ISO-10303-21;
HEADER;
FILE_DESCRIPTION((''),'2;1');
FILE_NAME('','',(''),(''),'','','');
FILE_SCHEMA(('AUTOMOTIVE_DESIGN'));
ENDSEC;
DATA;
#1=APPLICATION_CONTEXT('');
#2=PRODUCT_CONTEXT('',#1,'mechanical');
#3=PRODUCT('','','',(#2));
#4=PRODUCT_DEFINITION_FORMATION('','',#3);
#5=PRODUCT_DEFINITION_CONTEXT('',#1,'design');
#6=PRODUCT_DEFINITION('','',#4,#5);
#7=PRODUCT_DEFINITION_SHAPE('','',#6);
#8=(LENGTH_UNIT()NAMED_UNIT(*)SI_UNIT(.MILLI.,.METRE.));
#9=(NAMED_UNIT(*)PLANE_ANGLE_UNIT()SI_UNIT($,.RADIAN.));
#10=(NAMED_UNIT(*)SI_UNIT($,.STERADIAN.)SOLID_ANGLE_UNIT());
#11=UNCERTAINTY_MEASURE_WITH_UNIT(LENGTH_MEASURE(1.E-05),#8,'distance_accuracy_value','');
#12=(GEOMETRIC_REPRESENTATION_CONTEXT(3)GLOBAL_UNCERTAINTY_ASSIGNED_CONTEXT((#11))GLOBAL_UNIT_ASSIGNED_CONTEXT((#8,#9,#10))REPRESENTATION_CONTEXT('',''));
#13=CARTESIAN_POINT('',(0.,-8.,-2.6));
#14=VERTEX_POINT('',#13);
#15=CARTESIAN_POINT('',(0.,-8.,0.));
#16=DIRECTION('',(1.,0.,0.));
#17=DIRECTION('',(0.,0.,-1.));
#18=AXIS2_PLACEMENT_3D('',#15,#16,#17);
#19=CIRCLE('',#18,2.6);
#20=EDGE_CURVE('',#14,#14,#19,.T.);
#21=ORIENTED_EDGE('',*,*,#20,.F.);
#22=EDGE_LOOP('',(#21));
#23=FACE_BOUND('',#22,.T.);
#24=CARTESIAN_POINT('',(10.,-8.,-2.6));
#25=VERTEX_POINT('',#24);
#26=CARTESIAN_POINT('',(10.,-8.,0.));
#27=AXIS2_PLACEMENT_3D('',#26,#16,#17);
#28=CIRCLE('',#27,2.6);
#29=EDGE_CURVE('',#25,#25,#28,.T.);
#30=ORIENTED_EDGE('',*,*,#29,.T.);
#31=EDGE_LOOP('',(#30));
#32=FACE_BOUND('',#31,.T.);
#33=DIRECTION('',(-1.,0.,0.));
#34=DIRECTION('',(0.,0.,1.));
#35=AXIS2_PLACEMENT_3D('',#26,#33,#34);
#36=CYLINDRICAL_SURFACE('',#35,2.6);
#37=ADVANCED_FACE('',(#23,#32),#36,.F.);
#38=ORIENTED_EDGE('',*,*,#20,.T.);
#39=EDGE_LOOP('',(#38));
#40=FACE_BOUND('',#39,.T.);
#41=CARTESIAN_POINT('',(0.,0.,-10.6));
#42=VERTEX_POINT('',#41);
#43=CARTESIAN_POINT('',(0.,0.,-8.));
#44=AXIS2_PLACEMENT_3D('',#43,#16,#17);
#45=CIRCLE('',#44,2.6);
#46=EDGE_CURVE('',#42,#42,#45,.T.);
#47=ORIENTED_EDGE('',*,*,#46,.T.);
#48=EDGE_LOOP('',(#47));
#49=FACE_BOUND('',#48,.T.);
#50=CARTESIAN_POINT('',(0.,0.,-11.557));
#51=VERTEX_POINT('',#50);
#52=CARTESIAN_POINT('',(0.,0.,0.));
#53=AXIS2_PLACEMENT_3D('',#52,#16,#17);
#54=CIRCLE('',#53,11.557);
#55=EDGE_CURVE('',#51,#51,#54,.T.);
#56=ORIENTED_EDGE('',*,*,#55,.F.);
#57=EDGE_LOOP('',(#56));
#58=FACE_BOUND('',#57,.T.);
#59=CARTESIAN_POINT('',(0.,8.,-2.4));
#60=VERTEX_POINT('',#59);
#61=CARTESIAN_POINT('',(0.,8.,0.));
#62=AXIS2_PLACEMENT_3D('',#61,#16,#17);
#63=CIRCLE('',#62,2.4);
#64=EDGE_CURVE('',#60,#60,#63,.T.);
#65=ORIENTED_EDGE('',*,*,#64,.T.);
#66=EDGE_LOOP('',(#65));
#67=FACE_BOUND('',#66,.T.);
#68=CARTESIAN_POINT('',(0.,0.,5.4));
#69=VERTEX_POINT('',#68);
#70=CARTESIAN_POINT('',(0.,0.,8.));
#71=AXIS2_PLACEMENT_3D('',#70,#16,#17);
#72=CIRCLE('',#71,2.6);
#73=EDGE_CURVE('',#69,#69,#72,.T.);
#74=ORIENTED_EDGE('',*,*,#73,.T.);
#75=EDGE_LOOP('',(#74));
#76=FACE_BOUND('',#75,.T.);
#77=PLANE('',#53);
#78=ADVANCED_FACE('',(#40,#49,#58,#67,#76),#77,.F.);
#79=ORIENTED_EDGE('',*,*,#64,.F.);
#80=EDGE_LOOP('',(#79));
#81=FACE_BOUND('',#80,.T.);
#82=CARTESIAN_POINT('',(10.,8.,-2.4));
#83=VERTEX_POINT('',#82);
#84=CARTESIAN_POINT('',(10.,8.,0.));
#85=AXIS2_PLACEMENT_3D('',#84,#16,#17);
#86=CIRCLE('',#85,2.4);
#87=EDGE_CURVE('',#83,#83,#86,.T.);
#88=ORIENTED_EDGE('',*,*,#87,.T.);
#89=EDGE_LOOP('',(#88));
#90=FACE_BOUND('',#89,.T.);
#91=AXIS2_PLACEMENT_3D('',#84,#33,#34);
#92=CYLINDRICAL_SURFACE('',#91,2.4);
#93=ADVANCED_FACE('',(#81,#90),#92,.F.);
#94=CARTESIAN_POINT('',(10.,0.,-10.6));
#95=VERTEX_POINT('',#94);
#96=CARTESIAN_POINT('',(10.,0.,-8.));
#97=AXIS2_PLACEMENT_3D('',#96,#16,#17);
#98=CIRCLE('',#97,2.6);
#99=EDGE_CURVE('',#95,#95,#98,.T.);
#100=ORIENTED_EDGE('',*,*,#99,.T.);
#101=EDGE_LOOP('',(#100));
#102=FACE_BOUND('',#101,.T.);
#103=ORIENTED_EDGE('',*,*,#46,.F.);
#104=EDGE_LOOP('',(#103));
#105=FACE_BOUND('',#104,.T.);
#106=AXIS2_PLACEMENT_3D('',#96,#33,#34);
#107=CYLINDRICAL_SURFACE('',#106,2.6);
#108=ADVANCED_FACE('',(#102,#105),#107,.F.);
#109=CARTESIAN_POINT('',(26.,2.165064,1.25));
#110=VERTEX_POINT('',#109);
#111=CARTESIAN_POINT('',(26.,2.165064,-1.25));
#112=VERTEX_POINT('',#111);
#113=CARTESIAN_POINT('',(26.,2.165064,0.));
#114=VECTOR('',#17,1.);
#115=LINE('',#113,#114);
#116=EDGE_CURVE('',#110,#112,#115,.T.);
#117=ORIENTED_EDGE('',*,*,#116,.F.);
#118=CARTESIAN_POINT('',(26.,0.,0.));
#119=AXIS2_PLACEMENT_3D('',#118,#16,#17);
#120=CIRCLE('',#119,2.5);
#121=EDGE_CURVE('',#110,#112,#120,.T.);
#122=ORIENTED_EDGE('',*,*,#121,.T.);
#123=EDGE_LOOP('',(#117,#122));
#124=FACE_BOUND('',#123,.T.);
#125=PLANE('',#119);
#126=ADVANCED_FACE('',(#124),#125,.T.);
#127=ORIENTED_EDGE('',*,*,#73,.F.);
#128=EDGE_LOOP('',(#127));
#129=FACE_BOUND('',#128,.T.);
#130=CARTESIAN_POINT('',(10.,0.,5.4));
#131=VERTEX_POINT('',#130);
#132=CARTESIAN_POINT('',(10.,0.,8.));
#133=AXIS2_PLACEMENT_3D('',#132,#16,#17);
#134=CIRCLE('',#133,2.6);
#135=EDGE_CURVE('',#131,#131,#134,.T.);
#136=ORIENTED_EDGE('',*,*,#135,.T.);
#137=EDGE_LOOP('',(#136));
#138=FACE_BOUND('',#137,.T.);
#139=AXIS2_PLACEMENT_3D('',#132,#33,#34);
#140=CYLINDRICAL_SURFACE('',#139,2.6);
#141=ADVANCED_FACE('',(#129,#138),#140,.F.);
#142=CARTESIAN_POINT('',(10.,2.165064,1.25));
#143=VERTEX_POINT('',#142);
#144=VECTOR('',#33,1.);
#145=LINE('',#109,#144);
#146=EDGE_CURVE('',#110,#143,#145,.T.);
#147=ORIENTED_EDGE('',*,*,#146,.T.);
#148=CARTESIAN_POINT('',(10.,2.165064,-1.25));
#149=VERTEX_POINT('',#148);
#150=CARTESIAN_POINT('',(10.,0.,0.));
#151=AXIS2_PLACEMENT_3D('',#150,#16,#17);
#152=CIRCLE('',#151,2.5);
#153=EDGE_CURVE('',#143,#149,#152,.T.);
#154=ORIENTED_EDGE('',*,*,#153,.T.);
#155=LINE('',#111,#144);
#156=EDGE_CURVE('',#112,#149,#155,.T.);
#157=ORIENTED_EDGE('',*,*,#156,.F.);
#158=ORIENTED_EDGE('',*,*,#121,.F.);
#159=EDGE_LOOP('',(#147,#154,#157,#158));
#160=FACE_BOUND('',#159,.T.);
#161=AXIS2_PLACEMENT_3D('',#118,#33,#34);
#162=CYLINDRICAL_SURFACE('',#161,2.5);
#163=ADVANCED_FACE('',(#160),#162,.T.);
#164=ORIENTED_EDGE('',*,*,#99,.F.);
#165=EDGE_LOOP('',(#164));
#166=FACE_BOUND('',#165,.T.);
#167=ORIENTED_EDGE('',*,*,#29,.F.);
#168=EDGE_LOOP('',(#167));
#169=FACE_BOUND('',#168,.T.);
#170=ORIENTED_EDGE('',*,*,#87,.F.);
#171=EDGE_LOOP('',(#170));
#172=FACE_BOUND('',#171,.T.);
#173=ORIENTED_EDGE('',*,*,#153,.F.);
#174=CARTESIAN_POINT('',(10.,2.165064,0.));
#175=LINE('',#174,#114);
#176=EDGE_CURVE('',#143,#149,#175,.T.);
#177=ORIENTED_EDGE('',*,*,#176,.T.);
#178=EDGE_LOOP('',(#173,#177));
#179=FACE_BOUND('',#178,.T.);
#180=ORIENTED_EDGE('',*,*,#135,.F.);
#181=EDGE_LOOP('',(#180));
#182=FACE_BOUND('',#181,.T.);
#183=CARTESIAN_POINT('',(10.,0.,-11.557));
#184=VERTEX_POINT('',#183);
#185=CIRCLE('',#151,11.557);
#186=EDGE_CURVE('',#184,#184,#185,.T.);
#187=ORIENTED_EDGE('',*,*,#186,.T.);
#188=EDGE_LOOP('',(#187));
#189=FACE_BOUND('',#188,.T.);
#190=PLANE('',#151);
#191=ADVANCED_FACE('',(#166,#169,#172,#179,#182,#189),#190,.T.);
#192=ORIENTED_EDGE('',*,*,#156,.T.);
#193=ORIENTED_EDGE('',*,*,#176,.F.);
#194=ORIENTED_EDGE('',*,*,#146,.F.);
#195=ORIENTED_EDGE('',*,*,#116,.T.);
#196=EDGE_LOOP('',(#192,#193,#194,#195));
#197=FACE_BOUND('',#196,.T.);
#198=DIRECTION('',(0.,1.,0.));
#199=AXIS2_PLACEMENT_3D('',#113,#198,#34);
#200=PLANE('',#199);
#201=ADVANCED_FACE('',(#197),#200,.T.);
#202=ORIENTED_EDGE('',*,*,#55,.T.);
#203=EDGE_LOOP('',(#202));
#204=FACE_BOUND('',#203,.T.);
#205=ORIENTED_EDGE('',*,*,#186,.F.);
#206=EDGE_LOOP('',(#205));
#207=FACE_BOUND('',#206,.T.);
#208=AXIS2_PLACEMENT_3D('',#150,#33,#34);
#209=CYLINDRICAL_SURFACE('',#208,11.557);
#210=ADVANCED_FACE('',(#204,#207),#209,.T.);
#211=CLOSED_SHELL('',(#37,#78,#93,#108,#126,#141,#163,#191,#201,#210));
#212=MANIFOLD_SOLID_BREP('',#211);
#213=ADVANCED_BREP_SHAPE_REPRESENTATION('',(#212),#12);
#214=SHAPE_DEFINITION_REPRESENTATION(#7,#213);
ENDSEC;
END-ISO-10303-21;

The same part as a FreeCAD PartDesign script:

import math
import FreeCAD as App
import Part
import Sketcher

V = App.Vector

doc = App.newDocument("Part")
body = doc.addObject("PartDesign::Body", "Body")

sketch1 = doc.addObject("Sketcher::SketchObject", "Sketch")
body.addObject(sketch1)
sketch1.AttachmentSupport = (doc.YZ_Plane, [""])
sketch1.MapMode = "FlatFace"
sketch1.addGeometry(Part.Circle(V(0, 0, 0), V(0, 0, 1), 11.557), False)
sketch1.addGeometry(Part.Circle(V(-8, 0, 0), V(0, 0, 1), 2.6), False)
sketch1.addGeometry(Part.Circle(V(0, 8, 0), V(0, 0, 1), 2.6), False)
sketch1.addGeometry(Part.Circle(V(8, 0, 0), V(0, 0, 1), 2.4), False)
sketch1.addGeometry(Part.Circle(V(0, -8, 0), V(0, 0, 1), 2.6), False)
sketch1.addConstraint(Sketcher.Constraint("Coincident", 0, 3, -1, 1))
sketch1.addConstraint(Sketcher.Constraint("Equal", 1, 2))
sketch1.addConstraint(Sketcher.Constraint("Equal", 2, 4))
sketch1.addConstraint(Sketcher.Constraint("Symmetric", 1, 3, 3, 3, -1, 1))
sketch1.addConstraint(Sketcher.Constraint("Symmetric", 2, 3, 4, 3, -1, 1))
sketch1.addConstraint(Sketcher.Constraint("PointOnObject", 1, 3, -1))
sketch1.addConstraint(Sketcher.Constraint("PointOnObject", 2, 3, -2))
sketch1.addConstraint(Sketcher.Constraint("Diameter", 1, 5.2))
sketch1.addConstraint(Sketcher.Constraint("Diameter", 3, 4.8))
sketch1.addConstraint(Sketcher.Constraint("Diameter", 0, 23.114))
sketch1.addConstraint(Sketcher.Constraint("DistanceX", 1, 3, -1, 1, 8.0))
sketch1.addConstraint(Sketcher.Constraint("DistanceY", -1, 1, 2, 3, 8.0))
pad1 = doc.addObject("PartDesign::Pad", "Pad")
body.addObject(pad1)
pad1.Profile = sketch1
pad1.Length = 10

sketch2 = doc.addObject("Sketcher::SketchObject", "Sketch001")
body.addObject(sketch2)
sketch2.AttachmentSupport = (doc.YZ_Plane, [""])
sketch2.MapMode = "FlatFace"
sketch2.AttachmentOffset = App.Placement(V(0, 0, 10), App.Rotation())
sketch2.addGeometry(Part.LineSegment(V(2.165064, -1.25, 0), V(2.165064, 1.25, 0)), False)
sketch2.addGeometry(Part.ArcOfCircle(Part.Circle(V(0, 0, 0), V(0, 0, 1), 2.5), math.radians(30), math.radians(270)), False)
sketch2.addGeometry(Part.ArcOfCircle(Part.Circle(V(0, 0, 0), V(0, 0, 1), 2.5), math.radians(-90), math.radians(-30)), False)
sketch2.addConstraint(Sketcher.Constraint("Coincident", 0, 2, 1, 1))
sketch2.addConstraint(Sketcher.Constraint("Tangent", 1, 2, 2, 1))
sketch2.addConstraint(Sketcher.Constraint("Coincident", 2, 2, 0, 1))
sketch2.addConstraint(Sketcher.Constraint("Vertical", 0))
sketch2.addConstraint(Sketcher.Constraint("Coincident", 1, 3, -1, 1))
sketch2.addConstraint(Sketcher.Constraint("Equal", 1, 2))
sketch2.addConstraint(Sketcher.Constraint("PointOnObject", 1, 2, -2))
sketch2.addConstraint(Sketcher.Constraint("Radius", 1, 2.5))
sketch2.addConstraint(Sketcher.Constraint("DistanceY", 0, 1, 0, 2, 2.5))
pad2 = doc.addObject("PartDesign::Pad", "Pad001")
body.addObject(pad2)
pad2.Profile = sketch2
pad2.Length = 16

doc.recompute()
